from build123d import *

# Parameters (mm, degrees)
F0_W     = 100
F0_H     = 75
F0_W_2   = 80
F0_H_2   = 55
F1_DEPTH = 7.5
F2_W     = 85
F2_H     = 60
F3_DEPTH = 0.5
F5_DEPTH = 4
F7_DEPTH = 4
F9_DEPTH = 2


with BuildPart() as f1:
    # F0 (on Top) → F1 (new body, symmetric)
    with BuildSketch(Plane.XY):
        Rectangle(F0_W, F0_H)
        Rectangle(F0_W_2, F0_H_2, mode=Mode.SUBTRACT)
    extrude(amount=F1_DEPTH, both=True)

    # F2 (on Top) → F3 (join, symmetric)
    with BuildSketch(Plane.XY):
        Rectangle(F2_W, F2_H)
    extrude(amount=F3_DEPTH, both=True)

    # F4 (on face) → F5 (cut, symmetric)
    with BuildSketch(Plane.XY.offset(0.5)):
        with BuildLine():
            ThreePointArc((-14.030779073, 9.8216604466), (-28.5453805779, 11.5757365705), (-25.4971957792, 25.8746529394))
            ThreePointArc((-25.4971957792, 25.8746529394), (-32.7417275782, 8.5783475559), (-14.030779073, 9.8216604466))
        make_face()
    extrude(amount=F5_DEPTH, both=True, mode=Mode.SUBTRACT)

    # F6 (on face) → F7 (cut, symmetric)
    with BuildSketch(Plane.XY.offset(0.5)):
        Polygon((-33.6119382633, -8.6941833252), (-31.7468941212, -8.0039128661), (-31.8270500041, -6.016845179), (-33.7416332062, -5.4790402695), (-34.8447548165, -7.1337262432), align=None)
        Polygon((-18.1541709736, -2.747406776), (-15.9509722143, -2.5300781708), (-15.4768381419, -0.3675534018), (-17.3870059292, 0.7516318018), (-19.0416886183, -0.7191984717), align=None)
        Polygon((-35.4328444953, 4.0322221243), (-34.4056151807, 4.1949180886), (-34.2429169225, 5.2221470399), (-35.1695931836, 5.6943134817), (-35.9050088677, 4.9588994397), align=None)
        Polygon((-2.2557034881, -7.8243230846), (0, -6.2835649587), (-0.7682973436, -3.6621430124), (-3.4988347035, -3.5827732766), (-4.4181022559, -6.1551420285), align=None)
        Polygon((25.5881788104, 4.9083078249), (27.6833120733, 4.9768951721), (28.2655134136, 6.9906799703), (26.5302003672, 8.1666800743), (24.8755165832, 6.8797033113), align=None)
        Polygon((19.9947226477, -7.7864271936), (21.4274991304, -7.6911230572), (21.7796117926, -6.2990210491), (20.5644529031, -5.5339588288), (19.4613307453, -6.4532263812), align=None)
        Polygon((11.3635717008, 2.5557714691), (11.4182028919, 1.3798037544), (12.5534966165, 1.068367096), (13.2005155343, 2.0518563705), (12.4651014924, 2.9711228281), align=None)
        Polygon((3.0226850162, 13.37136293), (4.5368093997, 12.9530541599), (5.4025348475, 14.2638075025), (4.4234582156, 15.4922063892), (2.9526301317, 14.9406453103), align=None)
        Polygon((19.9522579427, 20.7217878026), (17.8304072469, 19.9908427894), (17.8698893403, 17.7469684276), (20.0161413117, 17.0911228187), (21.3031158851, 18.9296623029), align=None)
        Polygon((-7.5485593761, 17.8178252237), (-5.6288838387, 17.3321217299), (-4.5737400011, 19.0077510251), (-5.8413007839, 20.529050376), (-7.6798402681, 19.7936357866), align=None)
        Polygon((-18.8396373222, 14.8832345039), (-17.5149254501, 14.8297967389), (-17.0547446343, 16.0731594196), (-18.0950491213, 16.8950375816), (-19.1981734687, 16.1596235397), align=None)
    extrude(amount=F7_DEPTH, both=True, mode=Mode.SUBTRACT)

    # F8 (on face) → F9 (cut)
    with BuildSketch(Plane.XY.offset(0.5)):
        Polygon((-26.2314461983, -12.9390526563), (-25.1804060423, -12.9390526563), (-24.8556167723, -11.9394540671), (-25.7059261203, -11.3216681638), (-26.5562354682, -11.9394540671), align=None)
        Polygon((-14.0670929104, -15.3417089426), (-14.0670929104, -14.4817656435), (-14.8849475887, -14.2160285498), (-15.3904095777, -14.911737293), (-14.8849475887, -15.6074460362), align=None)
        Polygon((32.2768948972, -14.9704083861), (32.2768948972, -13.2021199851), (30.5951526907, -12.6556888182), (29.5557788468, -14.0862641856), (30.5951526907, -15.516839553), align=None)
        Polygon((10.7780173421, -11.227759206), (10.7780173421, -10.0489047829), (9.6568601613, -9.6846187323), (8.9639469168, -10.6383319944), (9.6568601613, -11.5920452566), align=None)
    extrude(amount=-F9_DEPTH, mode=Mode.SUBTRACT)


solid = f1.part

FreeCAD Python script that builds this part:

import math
import FreeCAD as App
import Part
import Sketcher
from FreeCAD import Vector
Q = App.Units.Quantity


def add_polygon(sketch, points):
    """Adds a closed chain of lines whose ends are joined by coincident constraints."""
    first, n = sketch.GeometryCount, len(points)
    for a, b in zip(points, points[1:] + points[:1]):
        sketch.addGeometry(Part.LineSegment(App.Vector(*a, 0), App.Vector(*b, 0)), False)
    for i in range(n):
        sketch.addConstraint(Sketcher.Constraint("Coincident", first + i, 2, first + (i + 1) % n, 1))

doc = App.newDocument("Part")
body = doc.addObject("PartDesign::Body", "Body")

sketch1 = body.newObject("Sketcher::SketchObject", "Sketch")
sketch1.AttachmentSupport = (doc.getObject("XY_Plane"), [""])
sketch1.MapMode = "FlatFace"
add_polygon(sketch1, [(-50, 38), (-50, -38), (50, -38), (50, 38)])
add_polygon(sketch1, [(40, -28), (-40, -28), (-40, 28), (40, 28)])
sketch1.addConstraint([
    Sketcher.Constraint("Vertical", 0),
    Sketcher.Constraint("Horizontal", 1),
    Sketcher.Constraint("Vertical", 2),
    Sketcher.Constraint("Horizontal", 3),
    Sketcher.Constraint("Horizontal", 4),
    Sketcher.Constraint("Vertical", 5),
    Sketcher.Constraint("Horizontal", 6),
    Sketcher.Constraint("Vertical", 7),
    Sketcher.Constraint("Symmetric", 0, 2, 2, 2, -1, 1),
    Sketcher.Constraint("Symmetric", 4, 2, 6, 2, -1, 1),
    Sketcher.Constraint("DistanceX", 1, 1, 1, 2, 100.0),
    Sketcher.Constraint("DistanceX", 4, 2, 4, 1, 80.0),
    Sketcher.Constraint("DistanceY", 0, 2, 0, 1, 75.0),
    Sketcher.Constraint("DistanceY", 5, 1, 5, 2, 55.0),
])
pad1 = body.newObject("PartDesign::Pad", "Pad")
pad1.Profile = sketch1
pad1.Length = 15
pad1.Midplane = True

sketch2 = body.newObject("Sketcher::SketchObject", "Sketch001")
sketch2.AttachmentSupport = (doc.getObject("XY_Plane"), [""])
sketch2.MapMode = "FlatFace"
add_polygon(sketch2, [(-42, 30), (-42, -30), (42, -30), (42, 30)])
sketch2.addConstraint([
    Sketcher.Constraint("Vertical", 0),
    Sketcher.Constraint("Horizontal", 1),
    Sketcher.Constraint("Vertical", 2),
    Sketcher.Constraint("Horizontal", 3),
    Sketcher.Constraint("Symmetric", 0, 2, 2, 2, -1, 1),
    Sketcher.Constraint("DistanceX", 1, 1, 1, 2, 85.0),
    Sketcher.Constraint("DistanceY", 0, 2, 0, 1, 60.0),
])
pad2 = body.newObject("PartDesign::Pad", "Pad001")
pad2.Profile = sketch2
pad2.Length = 1
pad2.Midplane = True

sketch3 = body.newObject("Sketcher::SketchObject", "Sketch002")
sketch3.AttachmentSupport = (doc.getObject("XY_Plane"), [""])
sketch3.MapMode = "FlatFace"
sketch3.AttachmentOffset = App.Placement(Vector(0, 0, 0.5), App.Rotation())
sketch3.addGeometry([
    Part.ArcOfCircle(Part.Circle(Vector(-20, 17, 0), Vector(0, 0, 1), 10), math.radians(120), math.radians(311)),
    Part.ArcOfCircle(Part.Circle(Vector(-24, 15, 0), Vector(0, 0, 1), 11), math.radians(99), math.radians(332)),
], False)
sketch3.addConstraint([
    Sketcher.Constraint("Coincident", 0, 1, 1, 1),
    Sketcher.Constraint("Coincident", 1, 2, 0, 2),
    Sketcher.Constraint("Radius", 1, 11.024481),
    Sketcher.Constraint("Radius", 0, 9.903663),
    Sketcher.Constraint("DistanceX", 1, 3, 0, 3, 3.2843),
    Sketcher.Constraint("DistanceY", -1, 1, 0, 3, 17.332122),
    Sketcher.Constraint("DistanceX", 1, 2, -1, 1, 14.030779),
    Sketcher.Constraint("DistanceY", -1, 1, 1, 2, 9.82166),
])
pocket1 = body.newObject("PartDesign::Pocket", "Pocket")
pocket1.Profile = sketch3
pocket1.Length = 8
pocket1.Midplane = True

sketch4 = body.newObject("Sketcher::SketchObject", "Sketch003")
sketch4.AttachmentSupport = (doc.getObject("XY_Plane"), [""])
sketch4.MapMode = "FlatFace"
sketch4.AttachmentOffset = App.Placement(Vector(0, 0, 0.5), App.Rotation())
add_polygon(sketch4, [(-33.6, -8.7), (-31.7, -8), (-31.8, -6), (-33.7, -5.5), (-34.8, -7.1)])
add_polygon(sketch4, [(-18.2, -2.7), (-16, -2.5), (-15.5, -0.4), (-17.4, 0.8), (-19, -0.7)])
add_polygon(sketch4, [(-35.4, 4), (-34.4, 4.2), (-34.2, 5.2), (-35.2, 5.7), (-35.9, 5)])
add_polygon(sketch4, [(-2.3, -7.8), (0, -6.3), (-0.8, -3.7), (-3.5, -3.6), (-4.4, -6.2)])
add_polygon(sketch4, [(25.6, 4.9), (27.7, 5), (28.3, 7), (26.5, 8.2), (24.9, 6.9)])
add_polygon(sketch4, [(20, -7.8), (21.4, -7.7), (21.8, -6.3), (20.6, -5.5), (19.5, -6.5)])
add_polygon(sketch4, [(11.4, 2.6), (11.4, 1.4), (12.6, 1.1), (13.2, 2.1), (12.5, 3)])
add_polygon(sketch4, [(3, 13.4), (4.5, 13), (5.4, 14.3), (4.4, 15.5), (3, 14.9)])
add_polygon(sketch4, [(20, 20.7), (17.8, 20), (17.9, 17.7), (20, 17.1), (21.3, 18.9)])
add_polygon(sketch4, [(-7.5, 17.8), (-5.6, 17.3), (-4.6, 19), (-5.8, 20.5), (-7.7, 19.8)])
add_polygon(sketch4, [(-18.8, 14.9), (-17.5, 14.8), (-17.1, 16.1), (-18.1, 16.9), (-19.2, 16.2)])
sketch4.addConstraint([
    Sketcher.Constraint("PointOnObject", 15, 2, -2),
    Sketcher.Constraint("Equal", 0, 1),
    Sketcher.Constraint("Equal", 1, 2),
    Sketcher.Constraint("Equal", 2, 3),
    Sketcher.Constraint("Equal", 3, 4),
    Sketcher.Constraint("Equal", 5, 6),
    Sketcher.Constraint("Equal", 6, 7),
    Sketcher.Constraint("Equal", 7, 8),
    Sketcher.Constraint("Equal", 8, 9),
    Sketcher.Constraint("Equal", 10, 11),
    Sketcher.Constraint("Equal", 11, 12),
    Sketcher.Constraint("Equal", 12, 13),
    Sketcher.Constraint("Equal", 13, 14),
    Sketcher.Constraint("Equal", 15, 16),
    Sketcher.Constraint("Equal", 16, 17),
    Sketcher.Constraint("Equal", 17, 18),
    Sketcher.Constraint("Equal", 18, 19),
    Sketcher.Constraint("Equal", 20, 21),
    Sketcher.Constraint("Equal", 21, 22),
    Sketcher.Constraint("Equal", 22, 23),
    Sketcher.Constraint("Equal", 23, 24),
    Sketcher.Constraint("Equal", 25, 26),
    Sketcher.Constraint("Equal", 26, 27),
    Sketcher.Constraint("Equal", 27, 28),
    Sketcher.Constraint("Equal", 28, 29),
    Sketcher.Constraint("Equal", 30, 31),
    Sketcher.Constraint("Equal", 31, 32),
    Sketcher.Constraint("Equal", 32, 33),
    Sketcher.Constraint("Equal", 33, 34),
    Sketcher.Constraint("Equal", 35, 36),
    Sketcher.Constraint("Equal", 36, 37),
    Sketcher.Constraint("Equal", 37, 38),
    Sketcher.Constraint("Equal", 38, 39),
    Sketcher.Constraint("Equal", 40, 41),
    Sketcher.Constraint("Equal", 41, 42),
    Sketcher.Constraint("Equal", 42, 43),
    Sketcher.Constraint("Equal", 43, 44),
    Sketcher.Constraint("Equal", 45, 46),
    Sketcher.Constraint("Equal", 46, 47),
    Sketcher.Constraint("Equal", 47, 48),
    Sketcher.Constraint("Equal", 48, 49),
    Sketcher.Constraint("Equal", 50, 51),
    Sketcher.Constraint("Equal", 51, 52),
    Sketcher.Constraint("Equal", 52, 53),
    Sketcher.Constraint("Equal", 53, 54),
    Sketcher.Constraint("Angle", 0, Q("20.309989 deg")),
    Sketcher.Constraint("Angle", 1, Q("92.309989 deg")),
    Sketcher.Constraint("Angle", 2, Q("164.309989 deg")),
    Sketcher.Constraint("Angle", 50, Q("-2.310011 deg")),
    Sketcher.Constraint("Angle", 51, Q("69.689989 deg")),
    Sketcher.Constraint("Angle", 52, Q("141.689989 deg")),
    Sketcher.Constraint("DistanceY", 18, 2, 16, 2, 2.492999),
    Sketcher.Constraint("DistanceY", 21, 2, 22, 2, 1.176),
    Sketcher.Constraint("DistanceY", 8, 2, -1, 1, 0.719198),
    Sketcher.Constraint("DistanceY", -1, 1, 13, 2, 4.958899),
    Sketcher.Constraint("DistanceX", -1, 1, 22, 2, 26.5302),
    Sketcher.Constraint("DistanceX", -1, 1, 25, 2, 21.427499),
    Sketcher.Constraint("DistanceX", -1, 1, 33, 2, 12.465101),
    Sketcher.Constraint("DistanceX", 47, 2, -1, 1, 5.841301),
    Sketcher.Constraint("DistanceX", 4, 2, 6, 2, 18.1351),
    Sketcher.Constraint("DistanceX", 9, 2, 5, 2, 2.203199),
    Sketcher.Constraint("DistanceY", 4, 2, 10, 2, 12.889101),
    Sketcher.Constraint("DistanceX", 10, 2, 11, 2, 0.162698),
    Sketcher.Constraint("DistanceX", 18, 2, 19, 2, 2.162399),
    Sketcher.Constraint("DistanceX", 20, 2, 21, 2, 0.582201),
    Sketcher.Constraint("DistanceX", 26, 2, 20, 2, 5.9037),
    Sketcher.Constraint("DistanceY", 26, 2, 21, 2, 13.289701),
    Sketcher.Constraint("DistanceY", 29, 2, 28, 2, 1.333201),
    Sketcher.Constraint("DistanceX", 16, 2, 30, 2, 12.1865),
    Sketcher.Constraint("DistanceX", 30, 2, 33, 2, 1.046899),
    Sketcher.Constraint("DistanceY", 36, 2, 37, 2, 1.228399),
    Sketcher.Constraint("DistanceX", 43, 2, 23, 2, 3.572401),
    Sketcher.Constraint("DistanceX", 46, 2, 37, 2, 8.997198),
    Sketcher.Constraint("DistanceY", 46, 2, 47, 2, 1.521299),
    Sketcher.Constraint("DistanceX", 48, 2, 46, 2, 3.1061),
    Sketcher.Constraint("DistanceY", 52, 2, 48, 2, 2.898598),
    Sketcher.Constraint("DistanceY", 53, 2, 49, 2, 1.658202),
    Sketcher.Constraint("Distance", 5, 2.213892),
    Sketcher.Constraint("Distance", 15, 2.731691),
    Sketcher.Constraint("Distance", 40, 2.244222),
    Sketcher.Constraint("Distance", 50, 1.325789),
    Sketcher.Constraint("DistanceX", 1, 2, -1, 1, 31.82705),
    Sketcher.Constraint("DistanceY", 2, 2, -1, 1, 5.47904),
    Sketcher.Constraint("DistanceX", 4, 2, -1, 1, 33.611938),
    Sketcher.Constraint("DistanceY", 5, 2, -1, 1, 2.530078),
    Sketcher.Constraint("DistanceY", -1, 1, 7, 2, 0.751632),
    Sketcher.Constraint("DistanceX", 13, 2, -1, 1, 35.905009),
    Sketcher.Constraint("DistanceY", -1, 1, 21, 2, 6.99068),
    Sketcher.Constraint("DistanceX", -1, 1, 24, 2, 25.588179),
    Sketcher.Constraint("DistanceX", -1, 1, 26, 2, 21.779612),
    Sketcher.Constraint("DistanceY", 27, 2, -1, 1, 5.533959),
    Sketcher.Constraint("DistanceX", -1, 1, 28, 2, 19.461331),
    Sketcher.Constraint("DistanceX", -1, 1, 34, 2, 11.363572),
    Sketcher.Constraint("DistanceY", -1, 1, 34, 2, 2.555771),
    Sketcher.Constraint("DistanceX", -1, 1, 35, 2, 4.536809),
    Sketcher.Constraint("DistanceX", -1, 1, 37, 2, 4.423458),
    Sketcher.Constraint("DistanceX", -1, 1, 38, 2, 2.95263),
    Sketcher.Constraint("DistanceX", -1, 1, 41, 2, 17.869889),
    Sketcher.Constraint("DistanceY", -1, 1, 41, 2, 17.746968),
    Sketcher.Constraint("DistanceX", -1, 1, 42, 2, 20.016141),
    Sketcher.Constraint("DistanceY", -1, 1, 45, 2, 17.332122),
    Sketcher.Constraint("DistanceX", 52, 2, -1, 1, 18.095049),
    Sketcher.Constraint("DistanceX", 10, 2, 2, 2, 0.663982),
    Sketcher.Constraint("DistanceY", 10, 2, 11, 2, 1.027229),
    Sketcher.Constraint("DistanceY", 15, 2, 6, 2, 5.916012),
    Sketcher.Constraint("DistanceY", 28, 2, 30, 2, 7.83303),
    Sketcher.Constraint("DistanceY", 26, 2, 31, 2, 7.367388),
    Sketcher.Constraint("DistanceY", 33, 2, 35, 2, 9.981931),
    Sketcher.Constraint("DistanceX", 36, 2, 30, 2, 6.015668),
    Sketcher.Constraint("DistanceX", 37, 2, 40, 2, 13.406949),
])
pocket2 = body.newObject("PartDesign::Pocket", "Pocket001")
pocket2.Profile = sketch4
pocket2.Length = 8
pocket2.Midplane = True

sketch5 = body.newObject("Sketcher::SketchObject", "Sketch004")
sketch5.AttachmentSupport = (doc.getObject("XY_Plane"), [""])
sketch5.MapMode = "FlatFace"
sketch5.AttachmentOffset = App.Placement(Vector(0, 0, 0.5), App.Rotation())
add_polygon(sketch5, [(-26.2, -12.9), (-25.2, -12.9), (-24.9, -11.9), (-25.7, -11.3), (-26.6, -11.9)])
add_polygon(sketch5, [(-14.1, -15.3), (-14.1, -14.5), (-14.9, -14.2), (-15.4, -14.9), (-14.9, -15.6)])
add_polygon(sketch5, [(32.3, -15), (32.3, -13.2), (30.6, -12.7), (29.6, -14.1), (30.6, -15.5)])
add_polygon(sketch5, [(10.8, -11.2), (10.8, -10), (9.7, -9.7), (9, -10.6), (9.7, -11.6)])
sketch5.addConstraint([
    Sketcher.Constraint("Horizontal", 0),
    Sketcher.Constraint("Vertical", 5),
    Sketcher.Constraint("Vertical", 10),
    Sketcher.Constraint("Vertical", 15),
    Sketcher.Constraint("Perpendicular", 1, 6),
    Sketcher.Constraint("Perpendicular", 2, 7),
    Sketcher.Constraint("Perpendicular", 3, 8),
    Sketcher.Constraint("Perpendicular", 4, 9),
    Sketcher.Constraint("Parallel", 6, 11),
    Sketcher.Constraint("Parallel", 7, 12),
    Sketcher.Constraint("Parallel", 8, 13),
    Sketcher.Constraint("Parallel", 9, 14),
    Sketcher.Constraint("Parallel", 11, 16),
    Sketcher.Constraint("Parallel", 12, 17),
    Sketcher.Constraint("Parallel", 13, 18),
    Sketcher.Constraint("Parallel", 14, 19),
    Sketcher.Constraint("Horizontal", 1, 2, 3, 2),
    Sketcher.Constraint("Vertical", 6, 2, 8, 2),
    Sketcher.Constraint("Vertical", 11, 2, 13, 2),
    Sketcher.Constraint("Vertical", 16, 2, 18, 2),
    Sketcher.Constraint("Equal", 1, 2),
    Sketcher.Constraint("Equal", 2, 3),
    Sketcher.Constraint("Equal", 3, 4),
    Sketcher.Constraint("Equal", 6, 7),
    Sketcher.Constraint("Equal", 11, 12),
    Sketcher.Constraint("Equal", 16, 17),
    Sketcher.Constraint("Angle", 1, Q("72 deg")),
    Sketcher.Constraint("Angle", 2, Q("144 deg")),
    Sketcher.Constraint("DistanceX", 0, 1, 0, 2, 1.05104),
    Sketcher.Constraint("DistanceY", 10, 1, 10, 2, 1.768288),
    Sketcher.Constraint("DistanceX", 4, 2, 6, 2, 11.346499),
    Sketcher.Constraint("DistanceX", 6, 2, 11, 2, 45.4801),
    Sketcher.Constraint("DistanceY", 5, 2, 12, 2, 0.395501),
    Sketcher.Constraint("DistanceY", 9, 2, 14, 2, 0.371301),
    Sketcher.Constraint("DistanceY", 10, 2, 16, 2, 3.517501),
    Sketcher.Constraint("DistanceY", 15, 1, 15, 2, 1.178854),
    Sketcher.Constraint("DistanceY", 2, 2, -1, 1, 11.321668),
    Sketcher.Constraint("DistanceY", 6, 2, -1, 1, 14.216029),
    Sketcher.Constraint("DistanceX", 7, 2, -1, 1, 15.39041),
    Sketcher.Constraint("DistanceX", -1, 1, 16, 2, 9.65686),
])
pocket3 = body.newObject("PartDesign::Pocket", "Pocket002")
pocket3.Profile = sketch5
pocket3.Length = 2

doc.recompute()
